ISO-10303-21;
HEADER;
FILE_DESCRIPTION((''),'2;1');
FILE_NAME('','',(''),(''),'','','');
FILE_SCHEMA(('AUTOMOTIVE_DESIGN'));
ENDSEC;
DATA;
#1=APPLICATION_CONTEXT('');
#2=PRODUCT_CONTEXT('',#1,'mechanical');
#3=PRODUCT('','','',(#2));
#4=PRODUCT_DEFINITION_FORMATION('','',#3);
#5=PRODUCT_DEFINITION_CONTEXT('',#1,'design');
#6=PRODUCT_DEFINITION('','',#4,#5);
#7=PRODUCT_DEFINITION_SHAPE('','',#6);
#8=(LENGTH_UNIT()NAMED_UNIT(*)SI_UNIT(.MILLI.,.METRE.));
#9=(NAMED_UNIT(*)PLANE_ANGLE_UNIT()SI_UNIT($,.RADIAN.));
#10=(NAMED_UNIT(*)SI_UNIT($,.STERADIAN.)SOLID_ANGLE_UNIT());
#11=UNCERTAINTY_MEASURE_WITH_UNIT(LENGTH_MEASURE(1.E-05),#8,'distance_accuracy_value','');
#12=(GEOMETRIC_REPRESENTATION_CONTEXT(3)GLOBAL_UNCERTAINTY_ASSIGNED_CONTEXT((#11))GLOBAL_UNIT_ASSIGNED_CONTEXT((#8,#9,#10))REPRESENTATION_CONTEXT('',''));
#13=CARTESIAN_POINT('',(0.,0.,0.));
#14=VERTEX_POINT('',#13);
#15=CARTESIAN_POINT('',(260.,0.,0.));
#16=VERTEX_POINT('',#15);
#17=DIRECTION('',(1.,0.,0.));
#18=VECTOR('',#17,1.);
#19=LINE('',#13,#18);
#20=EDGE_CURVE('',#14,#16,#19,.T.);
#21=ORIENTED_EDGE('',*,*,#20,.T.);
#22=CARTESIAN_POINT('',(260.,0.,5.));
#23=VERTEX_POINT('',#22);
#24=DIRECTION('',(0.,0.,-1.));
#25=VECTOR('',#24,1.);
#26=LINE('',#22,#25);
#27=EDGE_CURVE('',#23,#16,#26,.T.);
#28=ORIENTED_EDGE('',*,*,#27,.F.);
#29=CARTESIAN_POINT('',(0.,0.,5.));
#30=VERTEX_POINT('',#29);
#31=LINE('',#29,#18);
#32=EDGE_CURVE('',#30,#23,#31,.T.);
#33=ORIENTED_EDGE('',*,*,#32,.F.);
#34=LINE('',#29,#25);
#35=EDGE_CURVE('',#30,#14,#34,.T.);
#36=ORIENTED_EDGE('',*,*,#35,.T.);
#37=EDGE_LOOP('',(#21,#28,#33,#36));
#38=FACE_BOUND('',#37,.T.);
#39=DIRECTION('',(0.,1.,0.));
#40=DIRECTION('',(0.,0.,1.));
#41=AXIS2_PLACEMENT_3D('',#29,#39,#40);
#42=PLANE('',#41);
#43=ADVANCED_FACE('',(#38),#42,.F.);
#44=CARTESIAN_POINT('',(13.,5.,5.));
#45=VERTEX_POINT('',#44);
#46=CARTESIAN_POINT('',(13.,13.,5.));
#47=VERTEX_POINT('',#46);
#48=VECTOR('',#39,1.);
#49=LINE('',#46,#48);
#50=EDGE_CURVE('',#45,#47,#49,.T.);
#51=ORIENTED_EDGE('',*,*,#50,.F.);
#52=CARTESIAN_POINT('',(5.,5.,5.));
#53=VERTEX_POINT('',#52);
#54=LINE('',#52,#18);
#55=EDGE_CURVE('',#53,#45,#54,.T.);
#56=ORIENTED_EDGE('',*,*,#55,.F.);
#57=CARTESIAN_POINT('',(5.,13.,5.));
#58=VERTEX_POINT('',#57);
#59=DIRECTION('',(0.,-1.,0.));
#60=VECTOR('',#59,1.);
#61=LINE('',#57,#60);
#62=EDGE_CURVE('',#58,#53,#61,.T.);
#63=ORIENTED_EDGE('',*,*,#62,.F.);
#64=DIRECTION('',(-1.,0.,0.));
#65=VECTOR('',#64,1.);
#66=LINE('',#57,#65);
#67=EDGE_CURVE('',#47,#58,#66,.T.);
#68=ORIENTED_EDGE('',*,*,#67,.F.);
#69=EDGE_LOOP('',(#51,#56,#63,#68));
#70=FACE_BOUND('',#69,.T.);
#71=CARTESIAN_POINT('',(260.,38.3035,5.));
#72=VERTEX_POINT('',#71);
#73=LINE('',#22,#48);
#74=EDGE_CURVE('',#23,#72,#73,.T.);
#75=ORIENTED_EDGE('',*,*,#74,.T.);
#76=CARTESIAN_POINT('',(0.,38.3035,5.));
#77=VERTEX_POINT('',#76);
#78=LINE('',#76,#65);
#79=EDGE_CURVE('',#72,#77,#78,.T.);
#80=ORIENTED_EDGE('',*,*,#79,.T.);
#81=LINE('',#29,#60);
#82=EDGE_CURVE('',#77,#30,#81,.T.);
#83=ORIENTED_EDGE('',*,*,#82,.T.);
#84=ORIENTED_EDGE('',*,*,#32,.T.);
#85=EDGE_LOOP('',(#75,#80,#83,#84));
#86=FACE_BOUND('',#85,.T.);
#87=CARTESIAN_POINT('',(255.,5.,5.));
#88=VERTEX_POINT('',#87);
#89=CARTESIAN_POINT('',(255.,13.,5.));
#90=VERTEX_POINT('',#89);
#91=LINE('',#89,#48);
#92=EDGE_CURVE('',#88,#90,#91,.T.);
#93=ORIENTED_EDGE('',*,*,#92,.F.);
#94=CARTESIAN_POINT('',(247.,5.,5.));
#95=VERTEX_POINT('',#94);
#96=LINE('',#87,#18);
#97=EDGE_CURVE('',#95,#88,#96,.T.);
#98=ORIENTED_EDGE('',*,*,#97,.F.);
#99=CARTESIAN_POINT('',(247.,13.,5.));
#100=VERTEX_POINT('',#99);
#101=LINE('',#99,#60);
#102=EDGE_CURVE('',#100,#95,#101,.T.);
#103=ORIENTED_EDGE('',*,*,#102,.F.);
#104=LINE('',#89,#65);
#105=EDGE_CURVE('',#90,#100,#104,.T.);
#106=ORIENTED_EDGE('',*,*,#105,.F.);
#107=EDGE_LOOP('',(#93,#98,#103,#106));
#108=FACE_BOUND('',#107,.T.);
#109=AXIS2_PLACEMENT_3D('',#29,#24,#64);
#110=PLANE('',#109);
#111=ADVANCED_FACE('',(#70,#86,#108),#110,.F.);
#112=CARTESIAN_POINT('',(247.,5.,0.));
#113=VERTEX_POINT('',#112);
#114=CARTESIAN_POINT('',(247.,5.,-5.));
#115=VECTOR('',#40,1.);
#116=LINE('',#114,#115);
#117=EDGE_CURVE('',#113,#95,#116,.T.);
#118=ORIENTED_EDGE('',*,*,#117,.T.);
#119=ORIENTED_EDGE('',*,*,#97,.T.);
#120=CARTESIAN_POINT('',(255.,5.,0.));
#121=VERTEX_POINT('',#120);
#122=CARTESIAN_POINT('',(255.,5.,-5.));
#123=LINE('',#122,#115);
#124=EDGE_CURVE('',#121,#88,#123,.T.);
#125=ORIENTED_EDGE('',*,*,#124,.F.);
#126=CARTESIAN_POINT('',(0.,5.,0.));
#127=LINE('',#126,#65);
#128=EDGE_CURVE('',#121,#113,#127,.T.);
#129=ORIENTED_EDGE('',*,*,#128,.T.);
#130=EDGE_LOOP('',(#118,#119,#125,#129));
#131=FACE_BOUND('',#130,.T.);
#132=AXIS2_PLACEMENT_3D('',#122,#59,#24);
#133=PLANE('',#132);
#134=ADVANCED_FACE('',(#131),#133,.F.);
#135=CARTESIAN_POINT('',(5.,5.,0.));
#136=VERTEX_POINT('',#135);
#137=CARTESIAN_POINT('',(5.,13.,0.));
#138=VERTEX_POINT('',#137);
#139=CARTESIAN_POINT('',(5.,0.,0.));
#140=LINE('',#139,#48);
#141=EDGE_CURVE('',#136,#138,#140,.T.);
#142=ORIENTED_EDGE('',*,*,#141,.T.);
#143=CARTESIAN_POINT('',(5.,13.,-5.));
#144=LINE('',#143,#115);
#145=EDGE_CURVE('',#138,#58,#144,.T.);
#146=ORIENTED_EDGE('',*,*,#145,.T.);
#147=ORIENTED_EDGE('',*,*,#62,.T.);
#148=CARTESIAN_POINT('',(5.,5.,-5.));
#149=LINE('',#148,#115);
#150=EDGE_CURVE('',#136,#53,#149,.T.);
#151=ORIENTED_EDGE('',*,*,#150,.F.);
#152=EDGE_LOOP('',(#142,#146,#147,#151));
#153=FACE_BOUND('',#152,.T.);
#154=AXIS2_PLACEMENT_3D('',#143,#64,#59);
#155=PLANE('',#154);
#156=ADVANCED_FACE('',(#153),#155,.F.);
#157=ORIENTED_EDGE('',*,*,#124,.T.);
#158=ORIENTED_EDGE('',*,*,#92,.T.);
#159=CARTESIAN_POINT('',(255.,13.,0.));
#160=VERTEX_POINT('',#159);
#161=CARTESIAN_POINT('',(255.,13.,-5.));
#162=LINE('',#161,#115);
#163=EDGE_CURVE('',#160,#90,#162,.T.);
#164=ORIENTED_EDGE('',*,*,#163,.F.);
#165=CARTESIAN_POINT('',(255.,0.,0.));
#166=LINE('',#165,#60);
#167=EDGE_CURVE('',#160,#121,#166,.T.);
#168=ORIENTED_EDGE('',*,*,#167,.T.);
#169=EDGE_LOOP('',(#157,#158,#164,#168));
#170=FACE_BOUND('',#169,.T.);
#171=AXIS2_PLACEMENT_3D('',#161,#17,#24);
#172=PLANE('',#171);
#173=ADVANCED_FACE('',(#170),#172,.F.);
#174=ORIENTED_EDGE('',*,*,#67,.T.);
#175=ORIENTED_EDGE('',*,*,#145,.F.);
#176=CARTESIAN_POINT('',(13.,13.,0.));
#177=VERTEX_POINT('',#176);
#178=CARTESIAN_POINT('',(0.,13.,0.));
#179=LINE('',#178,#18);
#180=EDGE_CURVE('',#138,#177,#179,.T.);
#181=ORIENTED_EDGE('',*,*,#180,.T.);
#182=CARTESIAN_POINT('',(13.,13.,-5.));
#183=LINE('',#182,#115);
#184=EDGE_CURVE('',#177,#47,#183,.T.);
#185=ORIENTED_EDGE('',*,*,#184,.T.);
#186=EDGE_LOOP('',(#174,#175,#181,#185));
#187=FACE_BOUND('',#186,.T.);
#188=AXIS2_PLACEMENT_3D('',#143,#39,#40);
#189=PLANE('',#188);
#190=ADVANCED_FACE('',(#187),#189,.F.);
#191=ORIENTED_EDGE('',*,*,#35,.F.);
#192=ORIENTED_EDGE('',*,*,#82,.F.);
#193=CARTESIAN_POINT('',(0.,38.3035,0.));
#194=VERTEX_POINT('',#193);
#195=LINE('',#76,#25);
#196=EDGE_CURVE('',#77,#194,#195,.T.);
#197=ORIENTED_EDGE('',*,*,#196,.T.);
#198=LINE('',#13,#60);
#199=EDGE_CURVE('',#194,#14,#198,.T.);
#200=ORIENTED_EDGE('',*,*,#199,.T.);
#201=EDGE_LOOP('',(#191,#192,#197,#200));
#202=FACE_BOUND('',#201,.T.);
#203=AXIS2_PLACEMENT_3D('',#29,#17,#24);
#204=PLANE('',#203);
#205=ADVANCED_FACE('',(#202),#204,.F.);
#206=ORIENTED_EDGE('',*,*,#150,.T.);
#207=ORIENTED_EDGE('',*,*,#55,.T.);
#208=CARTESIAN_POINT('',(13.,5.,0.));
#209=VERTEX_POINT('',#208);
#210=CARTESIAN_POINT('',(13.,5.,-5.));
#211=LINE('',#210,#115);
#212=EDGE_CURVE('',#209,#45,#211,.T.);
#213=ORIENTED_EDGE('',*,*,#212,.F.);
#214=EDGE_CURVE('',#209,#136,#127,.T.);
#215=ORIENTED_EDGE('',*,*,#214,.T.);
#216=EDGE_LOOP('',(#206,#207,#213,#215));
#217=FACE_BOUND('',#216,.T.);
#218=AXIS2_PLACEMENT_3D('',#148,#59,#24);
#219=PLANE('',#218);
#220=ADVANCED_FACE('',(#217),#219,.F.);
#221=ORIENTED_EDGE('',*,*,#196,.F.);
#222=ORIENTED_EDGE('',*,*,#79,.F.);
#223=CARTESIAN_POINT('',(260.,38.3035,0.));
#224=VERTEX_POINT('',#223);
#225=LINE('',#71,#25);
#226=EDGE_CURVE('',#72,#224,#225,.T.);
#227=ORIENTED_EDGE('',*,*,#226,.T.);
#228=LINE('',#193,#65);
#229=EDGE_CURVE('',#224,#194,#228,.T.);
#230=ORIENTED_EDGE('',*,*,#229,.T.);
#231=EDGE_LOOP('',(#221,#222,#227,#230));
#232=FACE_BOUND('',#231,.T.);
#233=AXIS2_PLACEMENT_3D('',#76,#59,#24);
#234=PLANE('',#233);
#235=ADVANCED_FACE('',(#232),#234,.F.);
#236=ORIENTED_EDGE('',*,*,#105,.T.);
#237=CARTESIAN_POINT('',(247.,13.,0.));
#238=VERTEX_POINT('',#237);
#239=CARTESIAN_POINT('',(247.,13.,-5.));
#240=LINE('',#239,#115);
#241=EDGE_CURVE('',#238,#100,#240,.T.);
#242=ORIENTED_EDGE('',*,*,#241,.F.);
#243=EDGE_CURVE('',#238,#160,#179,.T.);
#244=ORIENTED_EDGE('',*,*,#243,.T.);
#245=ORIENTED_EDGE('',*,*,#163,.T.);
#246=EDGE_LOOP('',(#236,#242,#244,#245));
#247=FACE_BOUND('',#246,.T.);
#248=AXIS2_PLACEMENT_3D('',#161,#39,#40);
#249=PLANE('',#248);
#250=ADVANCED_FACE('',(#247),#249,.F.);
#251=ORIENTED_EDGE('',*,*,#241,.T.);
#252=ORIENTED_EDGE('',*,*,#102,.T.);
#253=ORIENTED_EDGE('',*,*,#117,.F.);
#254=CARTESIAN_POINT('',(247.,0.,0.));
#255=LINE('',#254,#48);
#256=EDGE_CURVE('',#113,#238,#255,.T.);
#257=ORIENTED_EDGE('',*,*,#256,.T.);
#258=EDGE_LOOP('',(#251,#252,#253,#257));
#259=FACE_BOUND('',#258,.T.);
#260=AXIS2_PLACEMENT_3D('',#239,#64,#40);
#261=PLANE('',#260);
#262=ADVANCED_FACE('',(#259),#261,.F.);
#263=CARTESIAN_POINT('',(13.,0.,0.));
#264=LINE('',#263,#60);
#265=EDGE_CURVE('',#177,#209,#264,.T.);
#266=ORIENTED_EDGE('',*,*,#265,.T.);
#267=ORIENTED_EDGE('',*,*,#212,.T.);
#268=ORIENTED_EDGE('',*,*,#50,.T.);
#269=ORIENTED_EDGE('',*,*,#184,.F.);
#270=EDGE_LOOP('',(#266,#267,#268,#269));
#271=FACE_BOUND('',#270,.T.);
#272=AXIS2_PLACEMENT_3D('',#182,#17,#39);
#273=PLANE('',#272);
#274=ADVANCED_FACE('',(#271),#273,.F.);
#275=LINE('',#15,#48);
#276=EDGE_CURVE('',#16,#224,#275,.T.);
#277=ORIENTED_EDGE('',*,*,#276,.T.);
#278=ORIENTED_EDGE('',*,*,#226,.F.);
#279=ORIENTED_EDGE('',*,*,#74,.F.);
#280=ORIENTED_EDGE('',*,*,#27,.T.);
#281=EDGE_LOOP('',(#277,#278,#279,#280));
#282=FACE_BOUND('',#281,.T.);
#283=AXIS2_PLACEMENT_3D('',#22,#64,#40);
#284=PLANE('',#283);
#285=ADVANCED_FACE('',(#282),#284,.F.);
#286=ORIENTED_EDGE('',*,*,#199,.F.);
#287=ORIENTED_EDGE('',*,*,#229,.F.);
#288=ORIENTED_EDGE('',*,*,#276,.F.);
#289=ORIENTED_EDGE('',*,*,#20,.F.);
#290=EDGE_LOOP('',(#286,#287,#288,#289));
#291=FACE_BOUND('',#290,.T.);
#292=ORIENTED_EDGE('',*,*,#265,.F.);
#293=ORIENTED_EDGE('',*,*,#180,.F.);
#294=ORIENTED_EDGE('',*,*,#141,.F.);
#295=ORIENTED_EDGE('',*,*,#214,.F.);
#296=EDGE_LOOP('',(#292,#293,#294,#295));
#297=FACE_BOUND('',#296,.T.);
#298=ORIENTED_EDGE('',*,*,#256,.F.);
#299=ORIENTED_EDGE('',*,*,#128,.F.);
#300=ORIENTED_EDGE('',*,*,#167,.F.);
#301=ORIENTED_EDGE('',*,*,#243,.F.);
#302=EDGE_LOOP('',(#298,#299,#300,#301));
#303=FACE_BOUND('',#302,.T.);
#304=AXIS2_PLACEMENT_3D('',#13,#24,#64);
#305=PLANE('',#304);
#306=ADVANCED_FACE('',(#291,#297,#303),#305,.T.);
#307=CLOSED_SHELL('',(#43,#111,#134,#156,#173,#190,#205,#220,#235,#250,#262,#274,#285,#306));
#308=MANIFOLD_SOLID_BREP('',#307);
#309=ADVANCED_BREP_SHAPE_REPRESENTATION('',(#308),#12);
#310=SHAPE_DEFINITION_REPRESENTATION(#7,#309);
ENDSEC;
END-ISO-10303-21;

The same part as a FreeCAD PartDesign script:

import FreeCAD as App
import Part
import Sketcher

V = App.Vector
Q = App.Units.Quantity

doc = App.newDocument("Part")
body = doc.addObject("PartDesign::Body", "Body")

# Sketch on XY plane
sketch1 = body.newObject("Sketcher::SketchObject", "Sketch")
sketch1.AttachmentSupport = (doc.getObject("XY_Plane"), [""])
sketch1.MapMode = "FlatFace"
sketch1.addGeometry([
    Part.LineSegment(V(0, 38, 0), V(0, 0, 0)),
    Part.LineSegment(V(0, 0, 0), V(260, 0, 0)),
    Part.LineSegment(V(260, 0, 0), V(260, 38, 0)),
    Part.LineSegment(V(260, 38, 0), V(0, 38, 0)),
], False)
sketch1.addConstraint([
    Sketcher.Constraint("Coincident", 0, 2, 1, 1),
    Sketcher.Constraint("Coincident", 1, 2, 2, 1),
    Sketcher.Constraint("Coincident", 2, 2, 3, 1),
    Sketcher.Constraint("Coincident", 3, 2, 0, 1),
    Sketcher.Constraint("Vertical", 0),
    Sketcher.Constraint("Horizontal", 1),
    Sketcher.Constraint("Vertical", 2),
    Sketcher.Constraint("Horizontal", 3),
    Sketcher.Constraint("Coincident", 0, 2, -1, 1),
    Sketcher.Constraint("DistanceX", 1, 1, 1, 2, Q("260 mm")),
    Sketcher.Constraint("DistanceY", 0, 2, 0, 1, Q("38.3035 mm")),
])
pad1 = body.newObject("PartDesign::Pad", "Pad")
pad1.Profile = sketch1
pad1.Length = 5

# Sketch on XY plane
sketch2 = body.newObject("Sketcher::SketchObject", "Sketch001")
sketch2.AttachmentSupport = (doc.getObject("XY_Plane"), [""])
sketch2.MapMode = "FlatFace"
sketch2.AttachmentOffset = App.Placement(V(0, 0, 5), App.Rotation())
sketch2.addGeometry([
    Part.LineSegment(V(5, 13, 0), V(5, 5, 0)),  # 0
    Part.LineSegment(V(5, 5, 0), V(13, 5, 0)),  # 1
    Part.LineSegment(V(13, 5, 0), V(13, 13, 0)),  # 2
    Part.LineSegment(V(13, 13, 0), V(5, 13, 0)),  # 3
    Part.LineSegment(V(247, 13, 0), V(247, 5, 0)),  # 4
    Part.LineSegment(V(247, 5, 0), V(255, 5, 0)),  # 5
    Part.LineSegment(V(255, 5, 0), V(255, 13, 0)),  # 6
    Part.LineSegment(V(255, 13, 0), V(247, 13, 0)),  # 7
], False)
sketch2.addConstraint([
    Sketcher.Constraint("Coincident", 0, 2, 1, 1),
    Sketcher.Constraint("Coincident", 1, 2, 2, 1),
    Sketcher.Constraint("Coincident", 2, 2, 3, 1),
    Sketcher.Constraint("Coincident", 3, 2, 0, 1),
    Sketcher.Constraint("Coincident", 4, 2, 5, 1),
    Sketcher.Constraint("Coincident", 5, 2, 6, 1),
    Sketcher.Constraint("Coincident", 6, 2, 7, 1),
    Sketcher.Constraint("Coincident", 7, 2, 4, 1),
    Sketcher.Constraint("Vertical", 0),
    Sketcher.Constraint("Horizontal", 1),
    Sketcher.Constraint("Vertical", 2),
    Sketcher.Constraint("Horizontal", 3),
    Sketcher.Constraint("Vertical", 4),
    Sketcher.Constraint("Horizontal", 5),
    Sketcher.Constraint("Vertical", 6),
    Sketcher.Constraint("Horizontal", 7),
    Sketcher.Constraint("Horizontal", 1, 2, 4, 2),
    Sketcher.Constraint("Horizontal", 3, 2, 6, 2),
    Sketcher.Constraint("Equal", 3, 5),
    Sketcher.Constraint("Equal", 7, 0),
    Sketcher.Constraint("DistanceX", 1, 1, 1, 2, Q("8 mm")),
    Sketcher.Constraint("DistanceX", -1, 1, 0, 2, Q("5 mm")),
    Sketcher.Constraint("DistanceY", -1, 1, 0, 2, Q("5 mm")),
    Sketcher.Constraint("DistanceX", -1, 1, 4, 2, Q("247 mm")),
])
pocket1 = body.newObject("PartDesign::Pocket", "Pocket")
pocket1.Profile = sketch2
pocket1.Length = 10

doc.recompute()
